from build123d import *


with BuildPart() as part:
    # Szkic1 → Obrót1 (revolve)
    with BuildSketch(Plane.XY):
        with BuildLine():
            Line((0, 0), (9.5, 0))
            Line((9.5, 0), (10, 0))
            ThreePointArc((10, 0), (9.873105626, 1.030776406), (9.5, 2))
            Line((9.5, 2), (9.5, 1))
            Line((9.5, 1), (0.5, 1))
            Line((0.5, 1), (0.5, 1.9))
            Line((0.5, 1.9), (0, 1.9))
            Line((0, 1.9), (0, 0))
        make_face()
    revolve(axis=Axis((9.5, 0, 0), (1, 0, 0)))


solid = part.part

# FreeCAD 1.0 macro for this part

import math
import FreeCAD as App
import Part
import Sketcher

V = App.Vector

doc = App.newDocument("Part")
body = doc.addObject("PartDesign::Body", "Body")

# Sketch on XY plane
sketch1 = body.newObject("Sketcher::SketchObject", "Sketch")
sketch1.AttachmentSupport = (doc.getObject("XY_Plane"), [""])
sketch1.MapMode = "FlatFace"
sketch1.addGeometry([
    Part.LineSegment(V(0, 0, 0), V(10, 0, 0)),  # 0
    Part.ArcOfCircle(Part.Circle(V(5.75, 0, 0), V(0, 0, 1), 4.25), math.radians(0), math.radians(28.072487)),  # 1
    Part.LineSegment(V(9.5, 2, 0), V(9.5, 1, 0)),  # 2
    Part.LineSegment(V(9.5, 1, 0), V(0.5, 1, 0)),  # 3
    Part.LineSegment(V(0.5, 1, 0), V(0.5, 1.9, 0)),  # 4
    Part.LineSegment(V(0.5, 1.9, 0), V(0, 1.9, 0)),  # 5
    Part.LineSegment(V(0, 1.9, 0), V(0, 0, 0)),  # 6
], False)
sketch1.addConstraint([
    Sketcher.Constraint("Coincident", 0, 2, 1, 1),
    Sketcher.Constraint("Coincident", 1, 2, 2, 1),
    Sketcher.Constraint("Coincident", 2, 2, 3, 1),
    Sketcher.Constraint("Coincident", 3, 2, 4, 1),
    Sketcher.Constraint("Coincident", 4, 2, 5, 1),
    Sketcher.Constraint("Coincident", 5, 2, 6, 1),
    Sketcher.Constraint("Coincident", 6, 2, 0, 1),
    Sketcher.Constraint("Horizontal", 0),
    Sketcher.Constraint("Vertical", 2),
    Sketcher.Constraint("Horizontal", 3),
    Sketcher.Constraint("Vertical", 4),
    Sketcher.Constraint("Horizontal", 5),
    Sketcher.Constraint("Vertical", 6),
    Sketcher.Constraint("Coincident", 6, 2, -1, 1),
    Sketcher.Constraint("PointOnObject", 1, 3, -1),
    Sketcher.Constraint("DistanceX", 0, 1, 0, 2, 10.0),
    Sketcher.Constraint("DistanceX", 3, 2, 3, 1, 9.0),
    Sketcher.Constraint("DistanceY", 2, 2, 2, 1, 1.0),
    Sketcher.Constraint("Radius", 1, 4.25),
    Sketcher.Constraint("DistanceX", 5, 2, 5, 1, 0.5),
    Sketcher.Constraint("DistanceY", 4, 1, 4, 2, 0.9),
])
revolution = body.newObject("PartDesign::Revolution", "Revolution")
revolution.Profile = sketch1
revolution.ReferenceAxis = (sketch1, ["H_Axis"])
revolution.Angle = 360

doc.recompute()
